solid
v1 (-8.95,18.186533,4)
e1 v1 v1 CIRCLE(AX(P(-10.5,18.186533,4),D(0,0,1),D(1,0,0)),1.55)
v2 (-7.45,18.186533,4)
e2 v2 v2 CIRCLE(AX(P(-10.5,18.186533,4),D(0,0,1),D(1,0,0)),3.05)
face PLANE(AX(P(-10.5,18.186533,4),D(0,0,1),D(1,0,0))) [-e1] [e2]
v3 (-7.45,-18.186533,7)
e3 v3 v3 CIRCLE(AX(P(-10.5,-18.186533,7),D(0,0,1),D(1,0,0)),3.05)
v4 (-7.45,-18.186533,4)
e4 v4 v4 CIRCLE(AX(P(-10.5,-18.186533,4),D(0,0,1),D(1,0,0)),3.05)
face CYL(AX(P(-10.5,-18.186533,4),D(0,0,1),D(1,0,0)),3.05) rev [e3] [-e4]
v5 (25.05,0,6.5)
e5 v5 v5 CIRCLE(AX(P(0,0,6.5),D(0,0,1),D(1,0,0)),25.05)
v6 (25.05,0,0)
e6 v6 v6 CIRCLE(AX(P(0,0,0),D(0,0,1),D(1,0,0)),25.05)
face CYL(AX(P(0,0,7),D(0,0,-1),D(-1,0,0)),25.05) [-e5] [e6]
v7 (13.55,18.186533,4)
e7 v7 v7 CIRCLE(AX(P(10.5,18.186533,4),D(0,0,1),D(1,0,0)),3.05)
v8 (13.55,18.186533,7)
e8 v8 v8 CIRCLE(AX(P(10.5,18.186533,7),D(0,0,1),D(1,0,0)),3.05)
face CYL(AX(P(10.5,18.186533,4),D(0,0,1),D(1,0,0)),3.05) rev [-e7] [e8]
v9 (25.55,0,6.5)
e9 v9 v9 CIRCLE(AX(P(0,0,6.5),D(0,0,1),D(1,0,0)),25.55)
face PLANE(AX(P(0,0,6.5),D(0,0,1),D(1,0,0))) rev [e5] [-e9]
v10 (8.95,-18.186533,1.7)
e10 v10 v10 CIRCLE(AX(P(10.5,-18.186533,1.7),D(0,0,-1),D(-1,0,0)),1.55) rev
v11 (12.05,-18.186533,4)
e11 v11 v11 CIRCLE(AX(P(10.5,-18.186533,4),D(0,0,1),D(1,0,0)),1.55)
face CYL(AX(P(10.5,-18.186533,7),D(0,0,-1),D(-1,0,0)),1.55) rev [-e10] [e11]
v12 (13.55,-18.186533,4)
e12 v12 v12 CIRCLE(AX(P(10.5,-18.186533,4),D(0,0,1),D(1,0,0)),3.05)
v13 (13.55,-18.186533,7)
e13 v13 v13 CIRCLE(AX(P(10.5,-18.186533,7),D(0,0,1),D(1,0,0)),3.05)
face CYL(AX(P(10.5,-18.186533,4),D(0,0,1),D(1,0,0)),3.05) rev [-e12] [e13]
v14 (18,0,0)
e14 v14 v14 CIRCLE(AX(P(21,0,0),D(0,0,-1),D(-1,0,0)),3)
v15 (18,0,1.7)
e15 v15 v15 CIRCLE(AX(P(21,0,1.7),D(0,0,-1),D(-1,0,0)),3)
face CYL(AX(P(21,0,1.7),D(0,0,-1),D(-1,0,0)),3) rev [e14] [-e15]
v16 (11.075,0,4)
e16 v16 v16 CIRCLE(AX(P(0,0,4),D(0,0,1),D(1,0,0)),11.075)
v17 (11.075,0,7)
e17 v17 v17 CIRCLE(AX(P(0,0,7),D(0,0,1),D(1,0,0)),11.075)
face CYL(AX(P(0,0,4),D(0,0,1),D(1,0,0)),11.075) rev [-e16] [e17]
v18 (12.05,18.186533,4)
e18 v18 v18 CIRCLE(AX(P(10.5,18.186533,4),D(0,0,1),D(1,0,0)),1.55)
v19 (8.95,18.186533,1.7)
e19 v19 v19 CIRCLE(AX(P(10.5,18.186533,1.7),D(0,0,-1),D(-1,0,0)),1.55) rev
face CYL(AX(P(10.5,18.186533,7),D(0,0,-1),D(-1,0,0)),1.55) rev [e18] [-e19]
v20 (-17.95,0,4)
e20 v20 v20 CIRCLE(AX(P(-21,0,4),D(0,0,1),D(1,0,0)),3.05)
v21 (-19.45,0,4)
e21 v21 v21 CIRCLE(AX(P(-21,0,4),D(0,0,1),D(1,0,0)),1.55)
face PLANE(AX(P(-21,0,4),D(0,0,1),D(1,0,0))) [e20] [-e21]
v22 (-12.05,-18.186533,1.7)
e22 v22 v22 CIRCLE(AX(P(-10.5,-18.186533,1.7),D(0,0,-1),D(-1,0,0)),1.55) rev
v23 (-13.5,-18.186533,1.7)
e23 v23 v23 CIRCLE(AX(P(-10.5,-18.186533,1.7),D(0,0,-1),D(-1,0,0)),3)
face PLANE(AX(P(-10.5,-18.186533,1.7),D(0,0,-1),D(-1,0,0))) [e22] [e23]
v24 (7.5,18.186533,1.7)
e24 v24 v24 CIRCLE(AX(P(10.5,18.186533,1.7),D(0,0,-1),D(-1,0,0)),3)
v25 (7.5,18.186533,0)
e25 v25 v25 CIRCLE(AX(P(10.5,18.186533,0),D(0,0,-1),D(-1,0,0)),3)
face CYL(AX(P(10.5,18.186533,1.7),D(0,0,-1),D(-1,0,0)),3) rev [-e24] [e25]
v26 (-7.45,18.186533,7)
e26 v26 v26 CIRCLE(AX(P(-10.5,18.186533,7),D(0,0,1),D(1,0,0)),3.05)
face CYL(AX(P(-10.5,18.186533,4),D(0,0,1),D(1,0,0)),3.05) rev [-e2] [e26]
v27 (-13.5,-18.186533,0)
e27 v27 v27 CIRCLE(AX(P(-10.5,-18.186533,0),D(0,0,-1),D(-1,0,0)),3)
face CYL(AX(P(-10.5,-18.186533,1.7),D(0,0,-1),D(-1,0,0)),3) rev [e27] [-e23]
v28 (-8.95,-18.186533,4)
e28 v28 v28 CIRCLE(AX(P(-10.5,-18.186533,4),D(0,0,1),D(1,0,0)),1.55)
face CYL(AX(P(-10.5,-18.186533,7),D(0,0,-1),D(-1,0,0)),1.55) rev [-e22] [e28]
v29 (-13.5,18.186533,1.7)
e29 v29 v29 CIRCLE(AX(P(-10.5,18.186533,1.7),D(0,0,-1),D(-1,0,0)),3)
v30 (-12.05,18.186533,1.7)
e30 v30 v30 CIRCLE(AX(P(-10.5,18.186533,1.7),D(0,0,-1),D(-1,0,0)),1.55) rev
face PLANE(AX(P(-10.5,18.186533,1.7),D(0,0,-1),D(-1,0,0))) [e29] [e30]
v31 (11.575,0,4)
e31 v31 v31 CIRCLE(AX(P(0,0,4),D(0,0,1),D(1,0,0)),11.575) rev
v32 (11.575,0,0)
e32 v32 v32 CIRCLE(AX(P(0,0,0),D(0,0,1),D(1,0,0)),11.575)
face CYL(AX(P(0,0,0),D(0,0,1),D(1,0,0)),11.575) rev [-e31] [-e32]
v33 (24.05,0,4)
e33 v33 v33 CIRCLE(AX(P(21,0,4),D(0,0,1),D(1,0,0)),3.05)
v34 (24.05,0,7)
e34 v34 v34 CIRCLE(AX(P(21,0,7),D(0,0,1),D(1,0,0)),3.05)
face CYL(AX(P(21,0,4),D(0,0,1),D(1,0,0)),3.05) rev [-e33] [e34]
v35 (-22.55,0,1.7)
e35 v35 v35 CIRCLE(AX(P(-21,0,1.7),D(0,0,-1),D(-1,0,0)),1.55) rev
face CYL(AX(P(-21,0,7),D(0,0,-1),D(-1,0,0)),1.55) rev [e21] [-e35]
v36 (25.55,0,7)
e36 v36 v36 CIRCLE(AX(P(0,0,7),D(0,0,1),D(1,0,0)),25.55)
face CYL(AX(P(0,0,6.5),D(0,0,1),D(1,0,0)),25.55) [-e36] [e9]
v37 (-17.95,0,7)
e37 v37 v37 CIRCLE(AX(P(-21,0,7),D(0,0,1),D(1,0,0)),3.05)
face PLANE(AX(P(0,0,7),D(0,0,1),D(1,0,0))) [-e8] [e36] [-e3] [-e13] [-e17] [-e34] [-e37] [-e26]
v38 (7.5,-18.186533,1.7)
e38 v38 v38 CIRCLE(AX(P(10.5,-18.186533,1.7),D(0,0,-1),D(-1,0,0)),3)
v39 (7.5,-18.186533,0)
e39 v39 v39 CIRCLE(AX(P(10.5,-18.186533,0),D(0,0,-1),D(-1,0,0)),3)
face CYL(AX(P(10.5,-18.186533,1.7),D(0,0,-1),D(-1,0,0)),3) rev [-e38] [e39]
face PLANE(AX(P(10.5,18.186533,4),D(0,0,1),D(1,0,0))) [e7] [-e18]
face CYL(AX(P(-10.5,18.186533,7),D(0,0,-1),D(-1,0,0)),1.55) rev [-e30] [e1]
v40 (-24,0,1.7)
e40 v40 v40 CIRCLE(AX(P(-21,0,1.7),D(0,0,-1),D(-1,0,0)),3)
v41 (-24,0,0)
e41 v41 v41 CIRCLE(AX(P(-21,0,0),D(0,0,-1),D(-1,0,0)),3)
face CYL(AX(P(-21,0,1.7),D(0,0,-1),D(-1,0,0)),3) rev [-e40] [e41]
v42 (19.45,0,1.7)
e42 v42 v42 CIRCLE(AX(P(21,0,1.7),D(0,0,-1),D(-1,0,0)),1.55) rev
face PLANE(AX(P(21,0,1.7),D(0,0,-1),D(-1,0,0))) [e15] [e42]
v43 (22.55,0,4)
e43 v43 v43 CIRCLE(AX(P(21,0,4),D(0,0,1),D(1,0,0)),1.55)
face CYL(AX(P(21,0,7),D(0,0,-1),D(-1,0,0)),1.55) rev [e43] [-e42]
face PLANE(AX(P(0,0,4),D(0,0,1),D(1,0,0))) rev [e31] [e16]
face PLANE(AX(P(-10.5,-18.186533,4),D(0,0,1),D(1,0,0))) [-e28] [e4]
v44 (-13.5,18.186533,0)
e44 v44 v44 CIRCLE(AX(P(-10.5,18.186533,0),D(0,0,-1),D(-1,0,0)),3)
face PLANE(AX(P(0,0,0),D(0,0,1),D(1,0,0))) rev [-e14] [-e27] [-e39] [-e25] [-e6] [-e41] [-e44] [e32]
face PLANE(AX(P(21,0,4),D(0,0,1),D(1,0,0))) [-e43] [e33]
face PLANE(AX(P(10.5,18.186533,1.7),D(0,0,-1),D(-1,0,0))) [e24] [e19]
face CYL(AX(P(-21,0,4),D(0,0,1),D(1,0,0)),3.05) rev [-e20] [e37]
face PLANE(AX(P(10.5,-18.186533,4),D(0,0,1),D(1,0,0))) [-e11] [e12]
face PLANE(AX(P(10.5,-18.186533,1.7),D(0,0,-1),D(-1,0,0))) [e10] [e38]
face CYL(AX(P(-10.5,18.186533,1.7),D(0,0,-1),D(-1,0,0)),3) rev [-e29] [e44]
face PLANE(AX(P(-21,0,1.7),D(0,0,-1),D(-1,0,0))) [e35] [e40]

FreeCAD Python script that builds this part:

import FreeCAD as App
import Part
import Sketcher

doc = App.newDocument("Part")
body = doc.addObject("PartDesign::Body", "Body")

# Sketch on XY plane
sketch1 = body.newObject("Sketcher::SketchObject", "Sketch")
sketch1.AttachmentSupport = (doc.getObject("XY_Plane"), [""])
sketch1.MapMode = "FlatFace"
sketch1.addGeometry(Part.Circle(App.Vector(0, 0, 0), App.Vector(0, 0, 1), 25.05), False)
sketch1.addConstraint([
    Sketcher.Constraint("Coincident", 0, 3, -1, 1),
    Sketcher.Constraint("Diameter", 0, 50.1),
])
pad1 = body.newObject("PartDesign::Pad", "Pad")
pad1.Profile = sketch1
pad1.Length = 7

# Sketch on XY plane
sketch2 = body.newObject("Sketcher::SketchObject", "Sketch001")
sketch2.AttachmentSupport = (doc.getObject("XY_Plane"), [""])
sketch2.MapMode = "FlatFace"
sketch2.AttachmentOffset = App.Placement(App.Vector(0, 0, 7), App.Rotation())
sketch2.addGeometry([
    Part.Circle(App.Vector(-21, 0, 0), App.Vector(0, 0, 1), 3.05),  # 0
    Part.Circle(App.Vector(-10.5, 18.186533, 0), App.Vector(0, 0, 1), 3.05),  # 1
    Part.Circle(App.Vector(10.5, 18.186533, 0), App.Vector(0, 0, 1), 3.05),  # 2
    Part.Circle(App.Vector(21, 0, 0), App.Vector(0, 0, 1), 3.05),  # 3
    Part.Circle(App.Vector(10.5, -18.186533, 0), App.Vector(0, 0, 1), 3.05),  # 4
    Part.Circle(App.Vector(-10.5, -18.186533, 0), App.Vector(0, 0, 1), 3.05),  # 5
], False)
sketch2.addConstraint([
    Sketcher.Constraint("Equal", 0, 1),
    Sketcher.Constraint("Equal", 1, 2),
    Sketcher.Constraint("Equal", 2, 3),
    Sketcher.Constraint("Equal", 3, 4),
    Sketcher.Constraint("Equal", 4, 5),
    Sketcher.Constraint("Symmetric", 0, 3, 3, 3, -1, 1),
    Sketcher.Constraint("Symmetric", 1, 3, 4, 3, -1, 1),
    Sketcher.Constraint("Symmetric", 2, 3, 5, 3, -1, 1),
    Sketcher.Constraint("Symmetric", 1, 3, 2, 3, -2),
    Sketcher.Constraint("PointOnObject", 0, 3, -1),
    Sketcher.Constraint("Diameter", 0, 6.1),
    Sketcher.Constraint("DistanceX", 0, 3, -1, 1, 21.0),
    Sketcher.Constraint("DistanceX", 1, 3, 2, 3, 21.0),
    Sketcher.Constraint("DistanceY", -1, 1, 1, 3, 18.186533),
])
pocket1 = body.newObject("PartDesign::Pocket", "Pocket")
pocket1.Profile = sketch2
pocket1.Length = 3

# Sketch on XY plane
sketch3 = body.newObject("Sketcher::SketchObject", "Sketch002")
sketch3.AttachmentSupport = (doc.getObject("XY_Plane"), [""])
sketch3.MapMode = "FlatFace"
sketch3.AttachmentOffset = App.Placement(App.Vector(0, 0, 6.5), App.Rotation())
sketch3.addGeometry([
    Part.Circle(App.Vector(0, 0, 0), App.Vector(0, 0, 1), 25.55),
    Part.Circle(App.Vector(0, 0, 0), App.Vector(0, 0, 1), 25.05),
], False)
sketch3.addConstraint([
    Sketcher.Constraint("Coincident", 0, 3, -1, 1),
    Sketcher.Constraint("Coincident", 1, 3, -1, 1),
    Sketcher.Constraint("Diameter", 0, 51.1),
    Sketcher.Constraint("Diameter", 1, 50.1),
])
pad2 = body.newObject("PartDesign::Pad", "Pad001")
pad2.Profile = sketch3
pad2.Length = 0.5

# Sketch on XY plane
sketch4 = body.newObject("Sketcher::SketchObject", "Sketch003")
sketch4.AttachmentSupport = (doc.getObject("XY_Plane"), [""])
sketch4.MapMode = "FlatFace"
sketch4.addGeometry([
    Part.Circle(App.Vector(21, 0, 0), App.Vector(0, 0, 1), 1.55),  # 0
    Part.Circle(App.Vector(10.5, 18.186533, 0), App.Vector(0, 0, 1), 1.55),  # 1
    Part.Circle(App.Vector(-10.5, 18.186533, 0), App.Vector(0, 0, 1), 1.55),  # 2
    Part.Circle(App.Vector(-21, 0, 0), App.Vector(0, 0, 1), 1.55),  # 3
    Part.Circle(App.Vector(-10.5, -18.186533, 0), App.Vector(0, 0, 1), 1.55),  # 4
    Part.Circle(App.Vector(10.5, -18.186533, 0), App.Vector(0, 0, 1), 1.55),  # 5
], False)
sketch4.addConstraint([
    Sketcher.Constraint("Equal", 0, 1),
    Sketcher.Constraint("Equal", 1, 2),
    Sketcher.Constraint("Equal", 2, 3),
    Sketcher.Constraint("Equal", 3, 4),
    Sketcher.Constraint("Equal", 4, 5),
    Sketcher.Constraint("Symmetric", 0, 3, 3, 3, -1, 1),
    Sketcher.Constraint("Symmetric", 1, 3, 4, 3, -1, 1),
    Sketcher.Constraint("Symmetric", 2, 3, 5, 3, -1, 1),
    Sketcher.Constraint("Symmetric", 1, 3, 2, 3, -2),
    Sketcher.Constraint("PointOnObject", 0, 3, -1),
    Sketcher.Constraint("Diameter", 0, 3.1),
    Sketcher.Constraint("DistanceX", -1, 1, 0, 3, 21.0),
    Sketcher.Constraint("DistanceX", 2, 3, 1, 3, 21.0),
    Sketcher.Constraint("DistanceY", -1, 1, 1, 3, 18.186533),
])
pocket2 = body.newObject("PartDesign::Pocket", "Pocket001")
pocket2.Profile = sketch4
pocket2.Type = "ThroughAll"
pocket2.Reversed = True

# Sketch on XY plane
sketch5 = body.newObject("Sketcher::SketchObject", "Sketch004")
sketch5.AttachmentSupport = (doc.getObject("XY_Plane"), [""])
sketch5.MapMode = "FlatFace"
sketch5.addGeometry([
    Part.Circle(App.Vector(21, 0, 0), App.Vector(0, 0, 1), 3),  # 0
    Part.Circle(App.Vector(10.5, 18.186533, 0), App.Vector(0, 0, 1), 3),  # 1
    Part.Circle(App.Vector(-10.5, 18.186533, 0), App.Vector(0, 0, 1), 3),  # 2
    Part.Circle(App.Vector(-21, 0, 0), App.Vector(0, 0, 1), 3),  # 3
    Part.Circle(App.Vector(-10.5, -18.186533, 0), App.Vector(0, 0, 1), 3),  # 4
    Part.Circle(App.Vector(10.5, -18.186533, 0), App.Vector(0, 0, 1), 3),  # 5
], False)
sketch5.addConstraint([
    Sketcher.Constraint("Equal", 0, 1),
    Sketcher.Constraint("Equal", 1, 2),
    Sketcher.Constraint("Equal", 2, 3),
    Sketcher.Constraint("Equal", 3, 4),
    Sketcher.Constraint("Equal", 4, 5),
    Sketcher.Constraint("Symmetric", 0, 3, 3, 3, -1, 1),
    Sketcher.Constraint("Symmetric", 1, 3, 4, 3, -1, 1),
    Sketcher.Constraint("Symmetric", 2, 3, 5, 3, -1, 1),
    Sketcher.Constraint("Symmetric", 1, 3, 2, 3, -2),
    Sketcher.Constraint("PointOnObject", 0, 3, -1),
    Sketcher.Constraint("Diameter", 0, 6.0),
    Sketcher.Constraint("DistanceX", -1, 1, 0, 3, 21.0),
    Sketcher.Constraint("DistanceX", 2, 3, 1, 3, 21.0),
    Sketcher.Constraint("DistanceY", -1, 1, 1, 3, 18.186533),
])
pocket3 = body.newObject("PartDesign::Pocket", "Pocket002")
pocket3.Profile = sketch5
pocket3.Length = 1.7
pocket3.Reversed = True

# Sketch on XY plane
sketch6 = body.newObject("Sketcher::SketchObject", "Sketch005")
sketch6.AttachmentSupport = (doc.getObject("XY_Plane"), [""])
sketch6.MapMode = "FlatFace"
sketch6.AttachmentOffset = App.Placement(App.Vector(0, 0, 7), App.Rotation())
sketch6.addGeometry(Part.Circle(App.Vector(0, 0, 0), App.Vector(0, 0, 1), 11.575), False)
sketch6.addConstraint([
    Sketcher.Constraint("Coincident", 0, 3, -1, 1),
    Sketcher.Constraint("Diameter", 0, 23.15),
])
pocket4 = body.newObject("PartDesign::Pocket", "Pocket003")
pocket4.Profile = sketch6
pocket4.Type = "ThroughAll"

# Sketch on XY plane
sketch7 = body.newObject("Sketcher::SketchObject", "Sketch006")
sketch7.AttachmentSupport = (doc.getObject("XY_Plane"), [""])
sketch7.MapMode = "FlatFace"
sketch7.AttachmentOffset = App.Placement(App.Vector(0, 0, 7), App.Rotation())
sketch7.addGeometry([
    Part.Circle(App.Vector(0, 0, 0), App.Vector(0, 0, 1), 11.575),
    Part.Circle(App.Vector(0, 0, 0), App.Vector(0, 0, 1), 11.075),
], False)
sketch7.addConstraint([
    Sketcher.Constraint("Coincident", 0, 3, -1, 1),
    Sketcher.Constraint("Coincident", 1, 3, -1, 1),
    Sketcher.Constraint("Diameter", 0, 23.15),
    Sketcher.Constraint("Diameter", 1, 22.15),
])
pad3 = body.newObject("PartDesign::Pad", "Pad002")
pad3.Profile = sketch7
pad3.Length = 3
pad3.Reversed = True

doc.recompute()
